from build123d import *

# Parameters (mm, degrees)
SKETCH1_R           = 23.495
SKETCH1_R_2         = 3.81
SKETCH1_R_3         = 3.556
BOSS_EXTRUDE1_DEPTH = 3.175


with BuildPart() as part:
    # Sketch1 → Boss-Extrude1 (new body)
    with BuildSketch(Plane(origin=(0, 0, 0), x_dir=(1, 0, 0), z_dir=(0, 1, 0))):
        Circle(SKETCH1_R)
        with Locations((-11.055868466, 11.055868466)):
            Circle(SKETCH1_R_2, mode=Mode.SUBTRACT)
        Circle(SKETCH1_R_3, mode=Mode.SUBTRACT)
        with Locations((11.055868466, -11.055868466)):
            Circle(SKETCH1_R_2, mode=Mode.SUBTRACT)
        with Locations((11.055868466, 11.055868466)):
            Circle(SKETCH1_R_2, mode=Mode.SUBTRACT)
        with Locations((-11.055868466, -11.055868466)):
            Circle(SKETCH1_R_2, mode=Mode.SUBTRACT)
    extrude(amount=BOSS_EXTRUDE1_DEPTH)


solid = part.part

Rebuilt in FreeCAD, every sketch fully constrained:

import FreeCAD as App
import Part
import Sketcher

V = App.Vector
Q = App.Units.Quantity

doc = App.newDocument("Part")
body = doc.addObject("PartDesign::Body", "Body")

# Sketch on XZ plane
sketch1 = doc.addObject("Sketcher::SketchObject", "Sketch")
body.addObject(sketch1)
sketch1.AttachmentSupport = (doc.XZ_Plane, [""])
sketch1.MapMode = "FlatFace"
sketch1.addGeometry([
    Part.Circle(V(0, 0, 0), V(0, 0, 1), 23.495),  # 0
    Part.Circle(V(-11.055868, 11.055868, 0), V(0, 0, 1), 3.81),  # 1
    Part.Circle(V(11.055868, 11.055868, 0), V(0, 0, 1), 3.81),  # 2
    Part.Circle(V(0, 0, 0), V(0, 0, 1), 3.556),  # 3
    Part.Circle(V(-11.055868, -11.055868, 0), V(0, 0, 1), 3.81),  # 4
    Part.Circle(V(11.055868, -11.055868, 0), V(0, 0, 1), 3.81),  # 5
], False)
sketch1.addConstraint([
    Sketcher.Constraint("Coincident", 0, 3, -1, 1),
    Sketcher.Constraint("Coincident", 3, 3, -1, 1),
    Sketcher.Constraint("Equal", 1, 2),
    Sketcher.Constraint("Equal", 2, 4),
    Sketcher.Constraint("Equal", 4, 5),
    Sketcher.Constraint("Symmetric", 2, 3, 4, 3, -1, 1),
    Sketcher.Constraint("Symmetric", 1, 3, 5, 3, -1, 1),
    Sketcher.Constraint("Symmetric", 1, 3, 2, 3, -2),
    Sketcher.Constraint("Diameter", 1, Q("0.3 in")),
    Sketcher.Constraint("Diameter", 0, Q("1.85 in")),
    Sketcher.Constraint("Diameter", 3, Q("0.28 in")),
    Sketcher.Constraint("DistanceX", 1, 3, -1, 1, Q("11.055868 mm")),
    Sketcher.Constraint("DistanceY", -1, 1, 1, 3, Q("11.055868 mm")),
])
pad1 = doc.addObject("PartDesign::Pad", "Pad")
body.addObject(pad1)
pad1.Profile = sketch1
pad1.Length = Q("0.125 in")
pad1.Reversed = True

doc.recompute()
